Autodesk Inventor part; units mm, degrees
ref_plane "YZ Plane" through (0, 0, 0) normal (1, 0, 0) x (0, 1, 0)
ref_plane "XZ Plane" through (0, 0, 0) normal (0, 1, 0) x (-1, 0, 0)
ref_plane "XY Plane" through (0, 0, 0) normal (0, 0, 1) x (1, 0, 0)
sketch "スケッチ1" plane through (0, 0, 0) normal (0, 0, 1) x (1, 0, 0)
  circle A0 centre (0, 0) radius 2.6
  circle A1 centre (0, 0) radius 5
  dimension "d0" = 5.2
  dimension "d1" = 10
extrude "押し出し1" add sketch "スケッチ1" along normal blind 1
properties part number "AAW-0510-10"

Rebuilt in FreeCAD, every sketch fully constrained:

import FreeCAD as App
import Part
import Sketcher

V = App.Vector
Q = App.Units.Quantity

doc = App.newDocument("Part")
body = doc.addObject("PartDesign::Body", "Body")

# Sketch on XY plane
sketch1 = body.newObject("Sketcher::SketchObject", "Sketch")
sketch1.AttachmentSupport = (doc.getObject("XY_Plane"), [""])
sketch1.MapMode = "FlatFace"
sketch1.addGeometry([
    Part.Circle(V(0, 0, 0), V(0, 0, 1), 5),
    Part.Circle(V(0, 0, 0), V(0, 0, 1), 2.6),
], False)
sketch1.addConstraint([
    Sketcher.Constraint("Coincident", 0, 3, -1, 1),
    Sketcher.Constraint("Coincident", 1, 3, -1, 1),
    Sketcher.Constraint("Diameter", 0, Q("10 mm")),
    Sketcher.Constraint("Diameter", 1, Q("5.2 mm")),
])
pad1 = body.newObject("PartDesign::Pad", "Pad")
pad1.Profile = sketch1
pad1.Length = 1

doc.recompute()
